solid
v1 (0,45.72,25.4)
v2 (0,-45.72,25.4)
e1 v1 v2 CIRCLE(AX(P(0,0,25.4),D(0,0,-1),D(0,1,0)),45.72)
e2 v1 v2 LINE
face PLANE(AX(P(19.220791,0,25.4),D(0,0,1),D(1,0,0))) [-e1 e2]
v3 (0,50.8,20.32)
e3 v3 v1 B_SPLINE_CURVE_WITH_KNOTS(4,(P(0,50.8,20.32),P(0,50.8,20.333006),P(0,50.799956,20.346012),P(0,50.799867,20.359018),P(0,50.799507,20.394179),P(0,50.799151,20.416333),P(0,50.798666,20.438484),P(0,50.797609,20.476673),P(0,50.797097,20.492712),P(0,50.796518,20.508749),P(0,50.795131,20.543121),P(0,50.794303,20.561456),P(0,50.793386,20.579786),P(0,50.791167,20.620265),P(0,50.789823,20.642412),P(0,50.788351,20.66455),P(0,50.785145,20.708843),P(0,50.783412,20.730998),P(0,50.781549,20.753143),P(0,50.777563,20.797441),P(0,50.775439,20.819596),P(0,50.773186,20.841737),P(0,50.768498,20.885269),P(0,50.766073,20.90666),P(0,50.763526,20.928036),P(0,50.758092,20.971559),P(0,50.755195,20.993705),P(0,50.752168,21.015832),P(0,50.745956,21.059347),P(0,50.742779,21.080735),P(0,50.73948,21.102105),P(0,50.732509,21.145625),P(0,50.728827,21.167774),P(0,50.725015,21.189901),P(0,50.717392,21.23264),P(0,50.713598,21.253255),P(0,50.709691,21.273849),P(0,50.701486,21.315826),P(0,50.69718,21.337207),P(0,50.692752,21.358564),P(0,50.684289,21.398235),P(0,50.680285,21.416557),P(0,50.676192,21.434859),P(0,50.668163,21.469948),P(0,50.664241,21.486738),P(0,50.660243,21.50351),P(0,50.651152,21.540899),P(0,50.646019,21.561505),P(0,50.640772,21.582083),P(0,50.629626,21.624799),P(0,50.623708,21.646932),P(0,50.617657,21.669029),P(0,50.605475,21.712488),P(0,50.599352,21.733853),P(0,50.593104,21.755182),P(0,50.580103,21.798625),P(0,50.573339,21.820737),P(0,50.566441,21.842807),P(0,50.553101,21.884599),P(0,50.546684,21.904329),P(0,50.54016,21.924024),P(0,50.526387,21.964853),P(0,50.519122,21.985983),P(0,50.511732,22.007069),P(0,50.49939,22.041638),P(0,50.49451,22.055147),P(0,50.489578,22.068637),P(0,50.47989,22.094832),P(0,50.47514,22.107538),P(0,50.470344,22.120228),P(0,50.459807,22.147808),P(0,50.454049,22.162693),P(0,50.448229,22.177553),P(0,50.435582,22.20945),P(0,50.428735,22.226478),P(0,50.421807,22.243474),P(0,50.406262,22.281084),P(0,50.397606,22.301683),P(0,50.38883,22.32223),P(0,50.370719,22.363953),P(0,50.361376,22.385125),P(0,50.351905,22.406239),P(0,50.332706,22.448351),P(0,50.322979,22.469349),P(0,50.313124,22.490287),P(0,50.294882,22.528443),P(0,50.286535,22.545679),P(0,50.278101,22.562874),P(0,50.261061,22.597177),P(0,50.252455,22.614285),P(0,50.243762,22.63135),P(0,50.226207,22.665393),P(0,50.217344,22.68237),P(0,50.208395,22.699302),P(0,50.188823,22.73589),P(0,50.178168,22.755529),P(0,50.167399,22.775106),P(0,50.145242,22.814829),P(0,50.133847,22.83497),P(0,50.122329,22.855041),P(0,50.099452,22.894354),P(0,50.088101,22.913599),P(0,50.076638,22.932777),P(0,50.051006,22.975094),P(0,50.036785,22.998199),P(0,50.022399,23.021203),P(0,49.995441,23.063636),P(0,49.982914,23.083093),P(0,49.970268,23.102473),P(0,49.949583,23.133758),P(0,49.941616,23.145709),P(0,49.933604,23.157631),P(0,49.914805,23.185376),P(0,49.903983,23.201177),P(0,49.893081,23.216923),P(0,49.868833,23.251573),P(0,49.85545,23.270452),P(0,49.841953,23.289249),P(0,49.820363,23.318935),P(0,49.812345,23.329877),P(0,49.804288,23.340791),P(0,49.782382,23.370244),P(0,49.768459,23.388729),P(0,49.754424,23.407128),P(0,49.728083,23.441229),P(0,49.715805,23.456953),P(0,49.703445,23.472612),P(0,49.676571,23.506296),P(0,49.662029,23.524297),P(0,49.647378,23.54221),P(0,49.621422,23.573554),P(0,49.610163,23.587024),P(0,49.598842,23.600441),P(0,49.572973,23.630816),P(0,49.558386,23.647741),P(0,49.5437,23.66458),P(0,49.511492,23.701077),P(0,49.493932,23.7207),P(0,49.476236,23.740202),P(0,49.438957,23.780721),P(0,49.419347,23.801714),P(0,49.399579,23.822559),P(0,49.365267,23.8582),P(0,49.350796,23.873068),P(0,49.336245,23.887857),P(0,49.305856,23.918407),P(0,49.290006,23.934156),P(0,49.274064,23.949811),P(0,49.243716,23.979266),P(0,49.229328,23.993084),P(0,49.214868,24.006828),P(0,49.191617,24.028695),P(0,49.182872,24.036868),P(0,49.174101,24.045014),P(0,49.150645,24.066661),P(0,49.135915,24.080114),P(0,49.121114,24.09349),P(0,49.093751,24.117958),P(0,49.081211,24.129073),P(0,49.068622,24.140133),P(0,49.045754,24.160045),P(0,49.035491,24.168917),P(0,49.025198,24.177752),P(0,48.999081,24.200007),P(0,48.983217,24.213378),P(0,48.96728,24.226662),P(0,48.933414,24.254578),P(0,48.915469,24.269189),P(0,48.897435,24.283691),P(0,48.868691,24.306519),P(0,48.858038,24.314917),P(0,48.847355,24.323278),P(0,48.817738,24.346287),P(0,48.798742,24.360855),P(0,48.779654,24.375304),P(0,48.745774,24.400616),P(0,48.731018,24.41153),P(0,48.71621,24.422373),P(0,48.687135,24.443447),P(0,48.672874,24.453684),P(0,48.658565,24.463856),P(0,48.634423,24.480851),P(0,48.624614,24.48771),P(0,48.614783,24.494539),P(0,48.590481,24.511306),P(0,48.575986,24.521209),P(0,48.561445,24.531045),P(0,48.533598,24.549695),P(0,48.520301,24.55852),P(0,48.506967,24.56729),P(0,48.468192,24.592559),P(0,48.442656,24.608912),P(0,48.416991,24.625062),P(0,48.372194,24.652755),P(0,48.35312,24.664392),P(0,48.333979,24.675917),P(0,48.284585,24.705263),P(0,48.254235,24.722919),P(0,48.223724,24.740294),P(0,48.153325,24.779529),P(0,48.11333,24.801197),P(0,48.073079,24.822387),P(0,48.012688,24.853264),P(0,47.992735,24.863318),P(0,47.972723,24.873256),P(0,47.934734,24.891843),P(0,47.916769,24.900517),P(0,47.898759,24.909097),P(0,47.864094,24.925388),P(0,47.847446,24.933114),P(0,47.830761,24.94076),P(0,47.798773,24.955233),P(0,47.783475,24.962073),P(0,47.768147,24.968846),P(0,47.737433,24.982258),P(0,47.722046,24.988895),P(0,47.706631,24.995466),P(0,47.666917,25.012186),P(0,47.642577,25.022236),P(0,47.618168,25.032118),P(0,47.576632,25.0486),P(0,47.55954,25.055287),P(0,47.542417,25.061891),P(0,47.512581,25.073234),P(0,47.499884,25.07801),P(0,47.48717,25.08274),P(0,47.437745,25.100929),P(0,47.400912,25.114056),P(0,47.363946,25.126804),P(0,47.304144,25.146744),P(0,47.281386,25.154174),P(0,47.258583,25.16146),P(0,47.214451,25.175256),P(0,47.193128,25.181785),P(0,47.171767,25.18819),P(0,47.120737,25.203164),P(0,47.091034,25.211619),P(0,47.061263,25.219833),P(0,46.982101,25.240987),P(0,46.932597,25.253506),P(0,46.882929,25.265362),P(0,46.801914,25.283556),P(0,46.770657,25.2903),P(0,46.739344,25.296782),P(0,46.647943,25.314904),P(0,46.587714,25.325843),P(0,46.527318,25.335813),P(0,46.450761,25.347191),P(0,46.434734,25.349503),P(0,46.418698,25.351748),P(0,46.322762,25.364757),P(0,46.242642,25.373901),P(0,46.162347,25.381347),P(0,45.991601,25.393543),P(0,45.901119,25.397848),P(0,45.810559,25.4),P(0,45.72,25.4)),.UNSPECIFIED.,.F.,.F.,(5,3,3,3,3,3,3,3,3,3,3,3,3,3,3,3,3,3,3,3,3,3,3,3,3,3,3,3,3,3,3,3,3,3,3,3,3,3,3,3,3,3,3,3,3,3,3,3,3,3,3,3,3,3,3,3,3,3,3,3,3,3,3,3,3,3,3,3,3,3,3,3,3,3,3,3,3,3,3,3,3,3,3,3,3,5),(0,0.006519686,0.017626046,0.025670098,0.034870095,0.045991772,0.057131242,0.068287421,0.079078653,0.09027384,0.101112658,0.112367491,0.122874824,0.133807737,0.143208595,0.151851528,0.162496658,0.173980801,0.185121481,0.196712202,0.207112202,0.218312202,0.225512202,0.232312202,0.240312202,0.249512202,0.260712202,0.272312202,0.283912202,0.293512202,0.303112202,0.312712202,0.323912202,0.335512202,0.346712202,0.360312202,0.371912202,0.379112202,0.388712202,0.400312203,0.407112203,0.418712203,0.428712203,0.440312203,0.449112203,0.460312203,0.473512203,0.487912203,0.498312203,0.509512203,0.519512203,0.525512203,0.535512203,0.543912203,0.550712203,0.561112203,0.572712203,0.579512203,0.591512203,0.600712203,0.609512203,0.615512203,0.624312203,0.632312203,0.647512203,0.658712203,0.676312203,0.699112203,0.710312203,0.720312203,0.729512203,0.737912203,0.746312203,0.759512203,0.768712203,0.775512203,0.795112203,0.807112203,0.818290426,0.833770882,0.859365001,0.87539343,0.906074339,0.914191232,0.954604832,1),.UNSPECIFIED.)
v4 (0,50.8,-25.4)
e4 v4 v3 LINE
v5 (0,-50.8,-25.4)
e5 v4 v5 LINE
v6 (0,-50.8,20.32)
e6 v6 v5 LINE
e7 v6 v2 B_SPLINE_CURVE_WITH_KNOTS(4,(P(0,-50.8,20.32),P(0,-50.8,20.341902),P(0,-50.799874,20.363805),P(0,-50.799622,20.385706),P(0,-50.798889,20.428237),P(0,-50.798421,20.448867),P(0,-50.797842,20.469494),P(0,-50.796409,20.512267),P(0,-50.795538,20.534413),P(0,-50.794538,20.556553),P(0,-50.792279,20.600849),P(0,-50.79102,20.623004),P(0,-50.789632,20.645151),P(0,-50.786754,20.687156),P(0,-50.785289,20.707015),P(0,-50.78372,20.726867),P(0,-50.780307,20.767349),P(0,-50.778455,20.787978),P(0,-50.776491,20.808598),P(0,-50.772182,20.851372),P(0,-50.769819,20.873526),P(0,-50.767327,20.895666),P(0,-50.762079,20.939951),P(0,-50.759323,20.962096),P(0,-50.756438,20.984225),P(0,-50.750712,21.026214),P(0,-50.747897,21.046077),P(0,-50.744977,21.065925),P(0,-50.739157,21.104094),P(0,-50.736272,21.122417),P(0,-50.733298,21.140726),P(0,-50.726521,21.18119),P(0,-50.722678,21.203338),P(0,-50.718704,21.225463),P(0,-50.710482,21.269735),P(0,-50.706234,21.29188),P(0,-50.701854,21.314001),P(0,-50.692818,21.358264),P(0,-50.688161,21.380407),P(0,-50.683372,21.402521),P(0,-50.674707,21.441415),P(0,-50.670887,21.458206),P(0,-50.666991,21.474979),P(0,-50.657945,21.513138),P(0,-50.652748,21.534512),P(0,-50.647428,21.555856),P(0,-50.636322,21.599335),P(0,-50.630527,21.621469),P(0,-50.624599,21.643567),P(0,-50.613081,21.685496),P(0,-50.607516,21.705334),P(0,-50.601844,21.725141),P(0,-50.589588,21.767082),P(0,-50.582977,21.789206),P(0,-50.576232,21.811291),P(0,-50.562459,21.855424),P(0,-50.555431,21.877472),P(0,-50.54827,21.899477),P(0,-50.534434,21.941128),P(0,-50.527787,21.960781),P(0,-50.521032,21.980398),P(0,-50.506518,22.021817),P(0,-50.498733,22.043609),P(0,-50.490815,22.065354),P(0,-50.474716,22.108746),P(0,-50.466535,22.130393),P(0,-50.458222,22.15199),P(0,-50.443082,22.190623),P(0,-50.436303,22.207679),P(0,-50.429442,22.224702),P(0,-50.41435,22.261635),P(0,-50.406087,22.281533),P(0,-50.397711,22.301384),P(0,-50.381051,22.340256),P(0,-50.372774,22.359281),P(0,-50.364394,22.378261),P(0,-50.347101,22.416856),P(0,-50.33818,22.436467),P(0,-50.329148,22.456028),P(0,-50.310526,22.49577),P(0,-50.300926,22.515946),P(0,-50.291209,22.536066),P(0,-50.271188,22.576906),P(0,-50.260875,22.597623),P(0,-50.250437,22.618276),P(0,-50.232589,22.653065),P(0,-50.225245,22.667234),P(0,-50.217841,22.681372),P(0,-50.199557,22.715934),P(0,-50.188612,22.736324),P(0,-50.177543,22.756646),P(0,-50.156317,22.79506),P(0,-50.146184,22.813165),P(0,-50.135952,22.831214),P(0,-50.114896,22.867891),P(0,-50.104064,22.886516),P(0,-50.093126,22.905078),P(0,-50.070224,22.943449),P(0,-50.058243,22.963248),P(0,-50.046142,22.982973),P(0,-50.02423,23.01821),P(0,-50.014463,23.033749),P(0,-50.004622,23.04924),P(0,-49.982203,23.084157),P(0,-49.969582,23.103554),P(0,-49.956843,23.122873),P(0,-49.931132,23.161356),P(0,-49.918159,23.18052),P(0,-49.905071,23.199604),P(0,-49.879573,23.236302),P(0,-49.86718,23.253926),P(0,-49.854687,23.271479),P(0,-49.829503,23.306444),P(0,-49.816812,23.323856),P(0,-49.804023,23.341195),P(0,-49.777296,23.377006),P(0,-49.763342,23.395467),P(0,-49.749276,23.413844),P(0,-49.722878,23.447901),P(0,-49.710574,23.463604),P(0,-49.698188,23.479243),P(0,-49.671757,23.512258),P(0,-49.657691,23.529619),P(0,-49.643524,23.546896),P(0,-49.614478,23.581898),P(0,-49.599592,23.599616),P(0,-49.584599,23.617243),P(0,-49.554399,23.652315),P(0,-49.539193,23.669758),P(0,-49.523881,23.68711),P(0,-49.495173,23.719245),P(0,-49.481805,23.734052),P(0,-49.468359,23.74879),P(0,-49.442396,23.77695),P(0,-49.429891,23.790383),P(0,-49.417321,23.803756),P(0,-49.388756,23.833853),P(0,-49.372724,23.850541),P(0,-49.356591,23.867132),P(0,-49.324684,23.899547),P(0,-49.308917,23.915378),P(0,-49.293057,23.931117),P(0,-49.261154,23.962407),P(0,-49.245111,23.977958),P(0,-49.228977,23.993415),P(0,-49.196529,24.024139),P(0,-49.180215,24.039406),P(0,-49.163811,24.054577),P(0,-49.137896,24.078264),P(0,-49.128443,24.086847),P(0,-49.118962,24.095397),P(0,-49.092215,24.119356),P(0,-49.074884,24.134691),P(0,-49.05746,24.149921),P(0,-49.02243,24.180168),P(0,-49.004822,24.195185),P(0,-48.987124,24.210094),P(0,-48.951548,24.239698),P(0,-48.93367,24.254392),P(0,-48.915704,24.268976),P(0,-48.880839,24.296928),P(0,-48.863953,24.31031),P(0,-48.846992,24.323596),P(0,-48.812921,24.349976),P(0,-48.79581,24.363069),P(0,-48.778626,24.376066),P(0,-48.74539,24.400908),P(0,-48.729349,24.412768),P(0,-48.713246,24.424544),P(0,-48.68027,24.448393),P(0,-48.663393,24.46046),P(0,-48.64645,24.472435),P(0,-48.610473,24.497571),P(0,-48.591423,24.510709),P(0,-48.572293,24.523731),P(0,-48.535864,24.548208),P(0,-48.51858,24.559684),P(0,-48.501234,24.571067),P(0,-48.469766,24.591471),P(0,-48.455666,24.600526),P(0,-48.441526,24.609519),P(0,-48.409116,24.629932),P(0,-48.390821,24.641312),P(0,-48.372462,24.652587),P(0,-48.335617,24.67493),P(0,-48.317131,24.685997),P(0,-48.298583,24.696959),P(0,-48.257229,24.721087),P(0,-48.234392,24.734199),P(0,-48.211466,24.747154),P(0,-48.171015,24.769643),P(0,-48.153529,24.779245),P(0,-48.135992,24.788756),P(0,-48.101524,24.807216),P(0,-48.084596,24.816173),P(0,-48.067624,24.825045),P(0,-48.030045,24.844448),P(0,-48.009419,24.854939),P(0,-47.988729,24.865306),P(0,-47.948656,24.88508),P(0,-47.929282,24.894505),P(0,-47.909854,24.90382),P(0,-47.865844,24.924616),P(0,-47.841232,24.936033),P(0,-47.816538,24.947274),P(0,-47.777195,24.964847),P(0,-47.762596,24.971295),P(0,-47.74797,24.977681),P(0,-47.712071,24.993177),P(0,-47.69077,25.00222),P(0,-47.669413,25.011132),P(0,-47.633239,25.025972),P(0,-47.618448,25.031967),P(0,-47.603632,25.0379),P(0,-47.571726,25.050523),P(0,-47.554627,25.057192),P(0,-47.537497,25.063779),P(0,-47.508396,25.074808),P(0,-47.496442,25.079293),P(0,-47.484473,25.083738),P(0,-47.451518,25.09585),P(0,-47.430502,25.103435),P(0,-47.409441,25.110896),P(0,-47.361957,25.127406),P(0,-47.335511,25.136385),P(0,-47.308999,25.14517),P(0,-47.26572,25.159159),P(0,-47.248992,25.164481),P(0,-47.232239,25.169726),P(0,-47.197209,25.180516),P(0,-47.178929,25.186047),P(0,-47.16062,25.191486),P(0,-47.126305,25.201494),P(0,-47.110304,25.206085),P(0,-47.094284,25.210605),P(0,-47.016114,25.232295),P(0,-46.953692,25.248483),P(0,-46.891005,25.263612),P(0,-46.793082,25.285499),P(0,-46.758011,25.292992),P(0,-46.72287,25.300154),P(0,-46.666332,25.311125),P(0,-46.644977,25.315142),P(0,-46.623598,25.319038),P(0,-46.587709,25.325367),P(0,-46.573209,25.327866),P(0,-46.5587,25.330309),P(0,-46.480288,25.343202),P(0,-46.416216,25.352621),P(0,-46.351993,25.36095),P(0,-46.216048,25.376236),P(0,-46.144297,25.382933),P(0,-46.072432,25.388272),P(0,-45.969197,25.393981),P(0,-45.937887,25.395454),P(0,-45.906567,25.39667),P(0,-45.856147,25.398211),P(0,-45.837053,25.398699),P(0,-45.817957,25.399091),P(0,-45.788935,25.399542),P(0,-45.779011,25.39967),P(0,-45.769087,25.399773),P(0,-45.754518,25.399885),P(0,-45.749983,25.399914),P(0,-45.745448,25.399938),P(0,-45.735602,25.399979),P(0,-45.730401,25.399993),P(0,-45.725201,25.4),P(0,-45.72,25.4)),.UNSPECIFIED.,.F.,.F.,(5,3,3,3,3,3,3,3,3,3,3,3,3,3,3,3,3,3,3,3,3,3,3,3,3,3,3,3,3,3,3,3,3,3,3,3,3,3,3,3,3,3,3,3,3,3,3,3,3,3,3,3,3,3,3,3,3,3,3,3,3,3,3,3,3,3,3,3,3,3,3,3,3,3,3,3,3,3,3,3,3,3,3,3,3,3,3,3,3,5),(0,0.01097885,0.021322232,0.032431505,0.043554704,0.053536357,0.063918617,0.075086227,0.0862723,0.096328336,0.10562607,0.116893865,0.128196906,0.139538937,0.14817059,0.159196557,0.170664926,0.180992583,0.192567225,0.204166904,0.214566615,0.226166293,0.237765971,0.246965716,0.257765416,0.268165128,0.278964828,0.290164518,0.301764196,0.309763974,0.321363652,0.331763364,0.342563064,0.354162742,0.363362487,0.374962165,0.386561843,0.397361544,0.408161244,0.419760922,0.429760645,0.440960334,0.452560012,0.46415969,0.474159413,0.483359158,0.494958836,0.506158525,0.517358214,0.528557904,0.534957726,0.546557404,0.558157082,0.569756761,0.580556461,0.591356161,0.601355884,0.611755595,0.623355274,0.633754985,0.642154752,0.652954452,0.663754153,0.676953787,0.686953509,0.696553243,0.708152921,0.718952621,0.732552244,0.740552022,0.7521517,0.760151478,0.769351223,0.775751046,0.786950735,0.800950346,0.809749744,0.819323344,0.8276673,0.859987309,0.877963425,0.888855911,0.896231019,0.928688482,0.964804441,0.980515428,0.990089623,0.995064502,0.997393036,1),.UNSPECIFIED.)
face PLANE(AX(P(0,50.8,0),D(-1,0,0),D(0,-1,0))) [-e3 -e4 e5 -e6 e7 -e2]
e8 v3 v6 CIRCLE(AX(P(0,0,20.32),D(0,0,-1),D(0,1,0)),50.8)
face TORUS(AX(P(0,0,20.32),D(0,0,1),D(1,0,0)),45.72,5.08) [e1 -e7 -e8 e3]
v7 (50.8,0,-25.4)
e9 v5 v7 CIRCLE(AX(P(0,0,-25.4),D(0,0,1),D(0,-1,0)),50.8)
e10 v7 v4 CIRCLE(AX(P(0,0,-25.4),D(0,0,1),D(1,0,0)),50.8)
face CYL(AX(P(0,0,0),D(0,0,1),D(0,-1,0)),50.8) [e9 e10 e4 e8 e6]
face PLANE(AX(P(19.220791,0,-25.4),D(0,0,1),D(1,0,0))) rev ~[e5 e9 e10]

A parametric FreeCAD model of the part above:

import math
import FreeCAD as App
import Part
import Sketcher
from FreeCAD import Vector
Q = App.Units.Quantity


def edges_at(feature, points):
    """Names of the edges that pass closest to the given points."""
    edges = feature.Shape.Edges
    near = lambda p: min(range(len(edges)), key=lambda i: edges[i].distToShape(Part.Vertex(*p))[0])
    return sorted({f"Edge{near(p) + 1}" for p in points})

doc = App.newDocument("Part")
body = doc.addObject("PartDesign::Body", "Body")

sketch1 = doc.addObject("Sketcher::SketchObject", "Sketch")
body.addObject(sketch1)
sketch1.AttachmentSupport = (doc.XY_Plane, [""])
sketch1.MapMode = "FlatFace"
sketch1.addGeometry([
    Part.ArcOfCircle(Part.Circle(Vector(0, 0, 0), Vector(0, 0, 1), 51), math.radians(-90), math.radians(0)),
    Part.ArcOfCircle(Part.Circle(Vector(0, 0, 0), Vector(0, 0, 1), 51), math.radians(0), math.radians(90)),
    Part.LineSegment(Vector(0, 51, 0), Vector(0, -51, 0)),
], False)
sketch1.addConstraint([
    Sketcher.Constraint("Tangent", 0, 2, 1, 1),
    Sketcher.Constraint("Coincident", 1, 2, 2, 1),
    Sketcher.Constraint("Coincident", 2, 2, 0, 1),
    Sketcher.Constraint("Vertical", 2),
    Sketcher.Constraint("Coincident", 0, 3, -1, 1),
    Sketcher.Constraint("Equal", 0, 1),
    Sketcher.Constraint("PointOnObject", 0, 2, -1),
    Sketcher.Constraint("PointOnObject", 1, 2, -2),
    Sketcher.Constraint("Radius", 0, Q("2 in")),
])
pad1 = doc.addObject("PartDesign::Pad", "Pad")
body.addObject(pad1)
pad1.Profile = sketch1
pad1.Length = Q("2 in")
pad1.Midplane = True
doc.recompute()

fillet = doc.addObject("PartDesign::Fillet", "Fillet")
body.addObject(fillet)
fillet.Base = (pad1, edges_at(pad1, [(35.921, 35.921, 25.4)]))
fillet.Radius = Q("0.2 in")

doc.recompute()
